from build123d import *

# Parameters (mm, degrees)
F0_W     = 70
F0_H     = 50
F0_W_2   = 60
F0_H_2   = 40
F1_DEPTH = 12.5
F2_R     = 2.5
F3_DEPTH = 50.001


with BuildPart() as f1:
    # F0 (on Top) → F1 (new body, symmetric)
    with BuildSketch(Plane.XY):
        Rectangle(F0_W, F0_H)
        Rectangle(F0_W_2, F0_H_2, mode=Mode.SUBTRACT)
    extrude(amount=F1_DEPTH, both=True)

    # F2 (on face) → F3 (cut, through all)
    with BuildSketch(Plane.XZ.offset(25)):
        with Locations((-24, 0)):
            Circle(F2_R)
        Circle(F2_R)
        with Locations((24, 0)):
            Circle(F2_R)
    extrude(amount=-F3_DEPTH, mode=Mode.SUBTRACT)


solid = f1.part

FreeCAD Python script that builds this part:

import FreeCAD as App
import Part
import Sketcher

V = App.Vector

doc = App.newDocument("Part")
body = doc.addObject("PartDesign::Body", "Body")

# Sketch on XY plane
sketch1 = body.newObject("Sketcher::SketchObject", "Sketch")
sketch1.AttachmentSupport = (doc.getObject("XY_Plane"), [""])
sketch1.MapMode = "FlatFace"
sketch1.addGeometry(Part.LineSegment(V(-35, 25, 0), V(-35, -25, 0)), False)
sketch1.addGeometry(Part.LineSegment(V(-35, -25, 0), V(35, -25, 0)), False)
sketch1.addGeometry(Part.LineSegment(V(35, -25, 0), V(35, 25, 0)), False)
sketch1.addGeometry(Part.LineSegment(V(35, 25, 0), V(-35, 25, 0)), False)
sketch1.addGeometry(Part.LineSegment(V(30, -20, 0), V(-30, -20, 0)), False)
sketch1.addGeometry(Part.LineSegment(V(-30, -20, 0), V(-30, 20, 0)), False)
sketch1.addGeometry(Part.LineSegment(V(-30, 20, 0), V(30, 20, 0)), False)
sketch1.addGeometry(Part.LineSegment(V(30, 20, 0), V(30, -20, 0)), False)
sketch1.addConstraint(Sketcher.Constraint("Coincident", 0, 2, 1, 1))
sketch1.addConstraint(Sketcher.Constraint("Coincident", 1, 2, 2, 1))
sketch1.addConstraint(Sketcher.Constraint("Coincident", 2, 2, 3, 1))
sketch1.addConstraint(Sketcher.Constraint("Coincident", 3, 2, 0, 1))
sketch1.addConstraint(Sketcher.Constraint("Coincident", 4, 2, 5, 1))
sketch1.addConstraint(Sketcher.Constraint("Coincident", 5, 2, 6, 1))
sketch1.addConstraint(Sketcher.Constraint("Coincident", 6, 2, 7, 1))
sketch1.addConstraint(Sketcher.Constraint("Coincident", 7, 2, 4, 1))
sketch1.addConstraint(Sketcher.Constraint("Vertical", 0))
sketch1.addConstraint(Sketcher.Constraint("Horizontal", 1))
sketch1.addConstraint(Sketcher.Constraint("Vertical", 2))
sketch1.addConstraint(Sketcher.Constraint("Horizontal", 3))
sketch1.addConstraint(Sketcher.Constraint("Horizontal", 4))
sketch1.addConstraint(Sketcher.Constraint("Vertical", 5))
sketch1.addConstraint(Sketcher.Constraint("Horizontal", 6))
sketch1.addConstraint(Sketcher.Constraint("Vertical", 7))
sketch1.addConstraint(Sketcher.Constraint("Symmetric", 0, 2, 2, 2, -1, 1))
sketch1.addConstraint(Sketcher.Constraint("Symmetric", 4, 2, 6, 2, -1, 1))
sketch1.addConstraint(Sketcher.Constraint("DistanceX", 1, 1, 1, 2, 70.0))
sketch1.addConstraint(Sketcher.Constraint("DistanceX", 4, 2, 4, 1, 60.0))
sketch1.addConstraint(Sketcher.Constraint("DistanceY", 0, 2, 0, 1, 50.0))
sketch1.addConstraint(Sketcher.Constraint("DistanceY", 5, 1, 5, 2, 40.0))
pad1 = body.newObject("PartDesign::Pad", "Pad")
pad1.Profile = sketch1
pad1.Length = 25
pad1.Midplane = True

# Sketch on XZ plane
sketch2 = body.newObject("Sketcher::SketchObject", "Sketch001")
sketch2.AttachmentSupport = (doc.getObject("XZ_Plane"), [""])
sketch2.MapMode = "FlatFace"
sketch2.AttachmentOffset = App.Placement(V(0, 0, 25), App.Rotation())
sketch2.addGeometry(Part.Circle(V(-24, 0, 0), V(0, 0, 1), 2.5), False)
sketch2.addGeometry(Part.Circle(V(0, 0, 0), V(0, 0, 1), 2.5), False)
sketch2.addGeometry(Part.Circle(V(24, 0, 0), V(0, 0, 1), 2.5), False)
sketch2.addConstraint(Sketcher.Constraint("Coincident", 1, 3, -1, 1))
sketch2.addConstraint(Sketcher.Constraint("Equal", 0, 1))
sketch2.addConstraint(Sketcher.Constraint("Equal", 1, 2))
sketch2.addConstraint(Sketcher.Constraint("Symmetric", 0, 3, 2, 3, -1, 1))
sketch2.addConstraint(Sketcher.Constraint("PointOnObject", 0, 3, -1))
sketch2.addConstraint(Sketcher.Constraint("Diameter", 0, 5.0))
sketch2.addConstraint(Sketcher.Constraint("DistanceX", 0, 3, -1, 1, 24.0))
pocket1 = body.newObject("PartDesign::Pocket", "Pocket")
pocket1.Profile = sketch2
pocket1.Type = "ThroughAll"

doc.recompute()
